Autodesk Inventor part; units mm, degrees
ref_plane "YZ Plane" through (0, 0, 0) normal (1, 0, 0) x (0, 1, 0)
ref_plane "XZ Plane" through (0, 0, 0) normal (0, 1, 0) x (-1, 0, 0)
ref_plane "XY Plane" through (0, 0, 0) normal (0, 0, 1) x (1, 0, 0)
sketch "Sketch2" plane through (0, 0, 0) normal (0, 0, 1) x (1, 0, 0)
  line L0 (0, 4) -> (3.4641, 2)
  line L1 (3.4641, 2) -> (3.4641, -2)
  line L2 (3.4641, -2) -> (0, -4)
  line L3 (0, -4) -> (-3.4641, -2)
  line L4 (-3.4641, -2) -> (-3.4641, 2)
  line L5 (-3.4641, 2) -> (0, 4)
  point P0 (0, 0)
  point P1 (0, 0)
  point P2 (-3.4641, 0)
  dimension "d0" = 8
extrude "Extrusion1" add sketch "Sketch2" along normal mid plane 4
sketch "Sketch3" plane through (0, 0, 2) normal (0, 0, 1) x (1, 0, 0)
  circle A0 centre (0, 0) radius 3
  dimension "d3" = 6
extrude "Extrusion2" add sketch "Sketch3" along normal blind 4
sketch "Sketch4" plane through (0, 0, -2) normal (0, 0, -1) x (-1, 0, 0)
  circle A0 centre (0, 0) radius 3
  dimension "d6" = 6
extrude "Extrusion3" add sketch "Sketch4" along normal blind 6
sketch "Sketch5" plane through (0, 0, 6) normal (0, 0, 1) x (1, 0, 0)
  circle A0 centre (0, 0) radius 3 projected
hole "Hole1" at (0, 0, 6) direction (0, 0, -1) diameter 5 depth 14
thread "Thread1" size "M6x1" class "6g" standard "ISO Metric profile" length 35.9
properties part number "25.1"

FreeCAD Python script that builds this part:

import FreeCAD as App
import Part
import Sketcher

V = App.Vector
Q = App.Units.Quantity


def add_polygon(sketch, points):
    """Adds a closed chain of lines whose ends are joined by coincident constraints."""
    first, n = sketch.GeometryCount, len(points)
    for a, b in zip(points, points[1:] + points[:1]):
        sketch.addGeometry(Part.LineSegment(App.Vector(*a, 0), App.Vector(*b, 0)), False)
    for i in range(n):
        sketch.addConstraint(Sketcher.Constraint("Coincident", first + i, 2, first + (i + 1) % n, 1))

doc = App.newDocument("Part")
body = doc.addObject("PartDesign::Body", "Body")

sketch1 = body.newObject("Sketcher::SketchObject", "Sketch")
sketch1.AttachmentSupport = (doc.getObject("XY_Plane"), [""])
sketch1.MapMode = "FlatFace"
add_polygon(sketch1, [(3.5, 2), (0, 4), (-3.5, 2), (-3.5, -2), (0, -4), (3.5, -2)])
sketch1.addConstraint([
    Sketcher.Constraint("Vertical", 2),
    Sketcher.Constraint("Vertical", 5),
    Sketcher.Constraint("Symmetric", 0, 2, 3, 2, -1, 1),
    Sketcher.Constraint("Symmetric", 1, 2, 4, 2, -1, 1),
    Sketcher.Constraint("PointOnObject", 0, 2, -2),
    Sketcher.Constraint("Parallel", 0, 3),
    Sketcher.Constraint("Horizontal", 2, 2, 4, 2),
    Sketcher.Constraint("DistanceY", 3, 2, 0, 2, Q("8 mm")),
    Sketcher.Constraint("DistanceY", 2, 2, 2, 1, Q("4 mm")),
    Sketcher.Constraint("Angle", 0, Q("150 deg")),
])
pad1 = body.newObject("PartDesign::Pad", "Pad")
pad1.Profile = sketch1
pad1.Length = 4
pad1.Midplane = True

sketch2 = body.newObject("Sketcher::SketchObject", "Sketch001")
sketch2.AttachmentSupport = (doc.getObject("XY_Plane"), [""])
sketch2.MapMode = "FlatFace"
sketch2.AttachmentOffset = App.Placement(V(0, 0, 2), App.Rotation())
sketch2.addGeometry(Part.Circle(V(0, 0, 0), V(0, 0, 1), 3), False)
sketch2.addConstraint([
    Sketcher.Constraint("Coincident", 0, 3, -1, 1),
    Sketcher.Constraint("Diameter", 0, Q("6 mm")),
])
pad2 = body.newObject("PartDesign::Pad", "Pad001")
pad2.Profile = sketch2
pad2.Length = 4

sketch3 = body.newObject("Sketcher::SketchObject", "Sketch002")
sketch3.AttachmentSupport = (doc.getObject("XY_Plane"), [""])
sketch3.MapMode = "FlatFace"
sketch3.AttachmentOffset = App.Placement(V(0, 0, -2), App.Rotation())
sketch3.addGeometry(Part.Circle(V(0, 0, 0), V(0, 0, 1), 3), False)
sketch3.addConstraint([
    Sketcher.Constraint("Coincident", 0, 3, -1, 1),
    Sketcher.Constraint("Diameter", 0, Q("6 mm")),
])
pad3 = body.newObject("PartDesign::Pad", "Pad002")
pad3.Profile = sketch3
pad3.Length = 6
pad3.Reversed = True

sketch4 = body.newObject("Sketcher::SketchObject", "Sketch003")
sketch4.AttachmentSupport = (doc.getObject("XY_Plane"), [""])
sketch4.MapMode = "FlatFace"
sketch4.AttachmentOffset = App.Placement(V(0, 0, 6), App.Rotation())
sketch4.addGeometry(Part.Circle(V(0, 0, 0), V(0, 0, 1), 2.5), False)
sketch4.addConstraint([
    Sketcher.Constraint("Coincident", 0, 3, -1, 1),
    Sketcher.Constraint("Diameter", 0, Q("5 mm")),
])
doc.recompute()
hole = body.newObject("PartDesign::Hole", "Hole")
hole.Profile = sketch4
hole.ThreadType = "None"
hole.Diameter = 5
hole.DepthType = "Dimension"
hole.Depth = 14
hole.DrillPoint = "Flat"

doc.recompute()
